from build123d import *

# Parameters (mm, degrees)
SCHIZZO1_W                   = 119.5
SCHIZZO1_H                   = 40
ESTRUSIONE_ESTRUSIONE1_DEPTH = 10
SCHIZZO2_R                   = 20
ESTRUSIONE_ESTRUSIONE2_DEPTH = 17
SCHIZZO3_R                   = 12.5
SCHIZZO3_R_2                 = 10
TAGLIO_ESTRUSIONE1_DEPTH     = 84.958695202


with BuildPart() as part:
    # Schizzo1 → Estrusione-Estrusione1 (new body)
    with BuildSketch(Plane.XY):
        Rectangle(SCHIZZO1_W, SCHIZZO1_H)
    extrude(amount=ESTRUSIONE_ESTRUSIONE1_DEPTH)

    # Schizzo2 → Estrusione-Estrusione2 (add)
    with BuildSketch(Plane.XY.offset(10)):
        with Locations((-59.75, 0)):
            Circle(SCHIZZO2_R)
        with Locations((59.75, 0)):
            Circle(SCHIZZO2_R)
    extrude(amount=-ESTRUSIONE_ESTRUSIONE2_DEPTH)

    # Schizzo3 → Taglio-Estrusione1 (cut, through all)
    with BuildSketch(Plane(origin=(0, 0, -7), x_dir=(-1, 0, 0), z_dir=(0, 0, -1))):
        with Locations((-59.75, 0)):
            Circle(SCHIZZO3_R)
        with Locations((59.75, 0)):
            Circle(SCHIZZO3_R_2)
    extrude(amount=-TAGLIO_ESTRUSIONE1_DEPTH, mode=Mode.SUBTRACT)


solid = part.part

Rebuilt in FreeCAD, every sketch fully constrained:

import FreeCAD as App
import Part
import Sketcher
from FreeCAD import Vector


def add_polygon(sketch, points):
    """Adds a closed chain of lines whose ends are joined by coincident constraints."""
    first, n = sketch.GeometryCount, len(points)
    for a, b in zip(points, points[1:] + points[:1]):
        sketch.addGeometry(Part.LineSegment(App.Vector(*a, 0), App.Vector(*b, 0)), False)
    for i in range(n):
        sketch.addConstraint(Sketcher.Constraint("Coincident", first + i, 2, first + (i + 1) % n, 1))

doc = App.newDocument("Part")
params = doc.addObject("Spreadsheet::Sheet", "Params")
for row, (alias, value) in enumerate([
    ("sketch1_height", "40 mm"),
    ("sketch1_width", "119.5 mm"),
    ("pad1_length", "10 mm"),
    ("sketch2_diameter", "40 mm"),
    ("pad2_length", "17 mm"),
    ("sketch3_diameter", "25 mm"),
    ("sketch3_diameter2", "20 mm"),
], start=1):
    params.set(f"A{row}", alias)
    params.set(f"B{row}", "=" + value)
    params.setAlias(f"B{row}", alias)

body = doc.addObject("PartDesign::Body", "Body")

sketch1 = body.newObject("Sketcher::SketchObject", "Sketch")
sketch1.AttachmentSupport = (doc.getObject("XY_Plane"), [""])
sketch1.MapMode = "FlatFace"
add_polygon(sketch1, [(-59.75, 20), (-59.75, -20), (59.75, -20), (59.75, 20)])
sketch1.addConstraint(Sketcher.Constraint("Vertical", 0))
sketch1.addConstraint(Sketcher.Constraint("Horizontal", 1))
sketch1.addConstraint(Sketcher.Constraint("Vertical", 2))
sketch1.addConstraint(Sketcher.Constraint("Horizontal", 3))
sketch1.addConstraint(Sketcher.Constraint("Symmetric", 0, 2, 2, 2, -1, 1))
sketch1.addConstraint(Sketcher.Constraint("DistanceY", 0, 2, 0, 1, 40.0))
sketch1.addConstraint(Sketcher.Constraint("DistanceX", 1, 1, 1, 2, 119.5))
sketch1.setExpression("Constraints[9]", "Params.sketch1_height")
sketch1.setExpression("Constraints[10]", "Params.sketch1_width")
pad1 = body.newObject("PartDesign::Pad", "Pad")
pad1.Profile = sketch1
pad1.setExpression("Length", "Params.pad1_length")

sketch2 = body.newObject("Sketcher::SketchObject", "Sketch001")
sketch2.AttachmentSupport = (doc.getObject("XY_Plane"), [""])
sketch2.MapMode = "FlatFace"
sketch2.AttachmentOffset = App.Placement(Vector(0, 0, 10), App.Rotation())
sketch2.addGeometry(Part.Circle(Vector(-59.75, 0, 0), Vector(0, 0, 1), 20), False)
sketch2.addGeometry(Part.Circle(Vector(59.75, 0, 0), Vector(0, 0, 1), 20), False)
sketch2.addConstraint(Sketcher.Constraint("Equal", 0, 1))
sketch2.addConstraint(Sketcher.Constraint("Symmetric", 0, 3, 1, 3, -1, 1))
sketch2.addConstraint(Sketcher.Constraint("PointOnObject", 0, 3, -1))
sketch2.addConstraint(Sketcher.Constraint("Diameter", 0, 40.0))
sketch2.addConstraint(Sketcher.Constraint("DistanceX", 0, 3, 1, 3, 119.5))
sketch2.setExpression("Constraints[3]", "Params.sketch2_diameter")
pad2 = body.newObject("PartDesign::Pad", "Pad001")
pad2.Profile = sketch2
pad2.setExpression("Length", "Params.pad2_length")
pad2.Reversed = True

sketch3 = body.newObject("Sketcher::SketchObject", "Sketch002")
sketch3.AttachmentSupport = (doc.getObject("XY_Plane"), [""])
sketch3.MapMode = "FlatFace"
sketch3.AttachmentOffset = App.Placement(Vector(0, 0, -7), App.Rotation())
sketch3.addGeometry(Part.Circle(Vector(59.75, 0, 0), Vector(0, 0, 1), 12.5), False)
sketch3.addGeometry(Part.Circle(Vector(-59.75, 0, 0), Vector(0, 0, 1), 10), False)
sketch3.addConstraint(Sketcher.Constraint("Symmetric", 0, 3, 1, 3, -1, 1))
sketch3.addConstraint(Sketcher.Constraint("PointOnObject", 0, 3, -1))
sketch3.addConstraint(Sketcher.Constraint("Diameter", 0, 25.0))
sketch3.addConstraint(Sketcher.Constraint("Diameter", 1, 20.0))
sketch3.addConstraint(Sketcher.Constraint("DistanceX", 1, 3, 0, 3, 119.5))
sketch3.setExpression("Constraints[2]", "Params.sketch3_diameter")
sketch3.setExpression("Constraints[3]", "Params.sketch3_diameter2")
pocket1 = body.newObject("PartDesign::Pocket", "Pocket")
pocket1.Profile = sketch3
pocket1.Type = "ThroughAll"
pocket1.Reversed = True

doc.recompute()
